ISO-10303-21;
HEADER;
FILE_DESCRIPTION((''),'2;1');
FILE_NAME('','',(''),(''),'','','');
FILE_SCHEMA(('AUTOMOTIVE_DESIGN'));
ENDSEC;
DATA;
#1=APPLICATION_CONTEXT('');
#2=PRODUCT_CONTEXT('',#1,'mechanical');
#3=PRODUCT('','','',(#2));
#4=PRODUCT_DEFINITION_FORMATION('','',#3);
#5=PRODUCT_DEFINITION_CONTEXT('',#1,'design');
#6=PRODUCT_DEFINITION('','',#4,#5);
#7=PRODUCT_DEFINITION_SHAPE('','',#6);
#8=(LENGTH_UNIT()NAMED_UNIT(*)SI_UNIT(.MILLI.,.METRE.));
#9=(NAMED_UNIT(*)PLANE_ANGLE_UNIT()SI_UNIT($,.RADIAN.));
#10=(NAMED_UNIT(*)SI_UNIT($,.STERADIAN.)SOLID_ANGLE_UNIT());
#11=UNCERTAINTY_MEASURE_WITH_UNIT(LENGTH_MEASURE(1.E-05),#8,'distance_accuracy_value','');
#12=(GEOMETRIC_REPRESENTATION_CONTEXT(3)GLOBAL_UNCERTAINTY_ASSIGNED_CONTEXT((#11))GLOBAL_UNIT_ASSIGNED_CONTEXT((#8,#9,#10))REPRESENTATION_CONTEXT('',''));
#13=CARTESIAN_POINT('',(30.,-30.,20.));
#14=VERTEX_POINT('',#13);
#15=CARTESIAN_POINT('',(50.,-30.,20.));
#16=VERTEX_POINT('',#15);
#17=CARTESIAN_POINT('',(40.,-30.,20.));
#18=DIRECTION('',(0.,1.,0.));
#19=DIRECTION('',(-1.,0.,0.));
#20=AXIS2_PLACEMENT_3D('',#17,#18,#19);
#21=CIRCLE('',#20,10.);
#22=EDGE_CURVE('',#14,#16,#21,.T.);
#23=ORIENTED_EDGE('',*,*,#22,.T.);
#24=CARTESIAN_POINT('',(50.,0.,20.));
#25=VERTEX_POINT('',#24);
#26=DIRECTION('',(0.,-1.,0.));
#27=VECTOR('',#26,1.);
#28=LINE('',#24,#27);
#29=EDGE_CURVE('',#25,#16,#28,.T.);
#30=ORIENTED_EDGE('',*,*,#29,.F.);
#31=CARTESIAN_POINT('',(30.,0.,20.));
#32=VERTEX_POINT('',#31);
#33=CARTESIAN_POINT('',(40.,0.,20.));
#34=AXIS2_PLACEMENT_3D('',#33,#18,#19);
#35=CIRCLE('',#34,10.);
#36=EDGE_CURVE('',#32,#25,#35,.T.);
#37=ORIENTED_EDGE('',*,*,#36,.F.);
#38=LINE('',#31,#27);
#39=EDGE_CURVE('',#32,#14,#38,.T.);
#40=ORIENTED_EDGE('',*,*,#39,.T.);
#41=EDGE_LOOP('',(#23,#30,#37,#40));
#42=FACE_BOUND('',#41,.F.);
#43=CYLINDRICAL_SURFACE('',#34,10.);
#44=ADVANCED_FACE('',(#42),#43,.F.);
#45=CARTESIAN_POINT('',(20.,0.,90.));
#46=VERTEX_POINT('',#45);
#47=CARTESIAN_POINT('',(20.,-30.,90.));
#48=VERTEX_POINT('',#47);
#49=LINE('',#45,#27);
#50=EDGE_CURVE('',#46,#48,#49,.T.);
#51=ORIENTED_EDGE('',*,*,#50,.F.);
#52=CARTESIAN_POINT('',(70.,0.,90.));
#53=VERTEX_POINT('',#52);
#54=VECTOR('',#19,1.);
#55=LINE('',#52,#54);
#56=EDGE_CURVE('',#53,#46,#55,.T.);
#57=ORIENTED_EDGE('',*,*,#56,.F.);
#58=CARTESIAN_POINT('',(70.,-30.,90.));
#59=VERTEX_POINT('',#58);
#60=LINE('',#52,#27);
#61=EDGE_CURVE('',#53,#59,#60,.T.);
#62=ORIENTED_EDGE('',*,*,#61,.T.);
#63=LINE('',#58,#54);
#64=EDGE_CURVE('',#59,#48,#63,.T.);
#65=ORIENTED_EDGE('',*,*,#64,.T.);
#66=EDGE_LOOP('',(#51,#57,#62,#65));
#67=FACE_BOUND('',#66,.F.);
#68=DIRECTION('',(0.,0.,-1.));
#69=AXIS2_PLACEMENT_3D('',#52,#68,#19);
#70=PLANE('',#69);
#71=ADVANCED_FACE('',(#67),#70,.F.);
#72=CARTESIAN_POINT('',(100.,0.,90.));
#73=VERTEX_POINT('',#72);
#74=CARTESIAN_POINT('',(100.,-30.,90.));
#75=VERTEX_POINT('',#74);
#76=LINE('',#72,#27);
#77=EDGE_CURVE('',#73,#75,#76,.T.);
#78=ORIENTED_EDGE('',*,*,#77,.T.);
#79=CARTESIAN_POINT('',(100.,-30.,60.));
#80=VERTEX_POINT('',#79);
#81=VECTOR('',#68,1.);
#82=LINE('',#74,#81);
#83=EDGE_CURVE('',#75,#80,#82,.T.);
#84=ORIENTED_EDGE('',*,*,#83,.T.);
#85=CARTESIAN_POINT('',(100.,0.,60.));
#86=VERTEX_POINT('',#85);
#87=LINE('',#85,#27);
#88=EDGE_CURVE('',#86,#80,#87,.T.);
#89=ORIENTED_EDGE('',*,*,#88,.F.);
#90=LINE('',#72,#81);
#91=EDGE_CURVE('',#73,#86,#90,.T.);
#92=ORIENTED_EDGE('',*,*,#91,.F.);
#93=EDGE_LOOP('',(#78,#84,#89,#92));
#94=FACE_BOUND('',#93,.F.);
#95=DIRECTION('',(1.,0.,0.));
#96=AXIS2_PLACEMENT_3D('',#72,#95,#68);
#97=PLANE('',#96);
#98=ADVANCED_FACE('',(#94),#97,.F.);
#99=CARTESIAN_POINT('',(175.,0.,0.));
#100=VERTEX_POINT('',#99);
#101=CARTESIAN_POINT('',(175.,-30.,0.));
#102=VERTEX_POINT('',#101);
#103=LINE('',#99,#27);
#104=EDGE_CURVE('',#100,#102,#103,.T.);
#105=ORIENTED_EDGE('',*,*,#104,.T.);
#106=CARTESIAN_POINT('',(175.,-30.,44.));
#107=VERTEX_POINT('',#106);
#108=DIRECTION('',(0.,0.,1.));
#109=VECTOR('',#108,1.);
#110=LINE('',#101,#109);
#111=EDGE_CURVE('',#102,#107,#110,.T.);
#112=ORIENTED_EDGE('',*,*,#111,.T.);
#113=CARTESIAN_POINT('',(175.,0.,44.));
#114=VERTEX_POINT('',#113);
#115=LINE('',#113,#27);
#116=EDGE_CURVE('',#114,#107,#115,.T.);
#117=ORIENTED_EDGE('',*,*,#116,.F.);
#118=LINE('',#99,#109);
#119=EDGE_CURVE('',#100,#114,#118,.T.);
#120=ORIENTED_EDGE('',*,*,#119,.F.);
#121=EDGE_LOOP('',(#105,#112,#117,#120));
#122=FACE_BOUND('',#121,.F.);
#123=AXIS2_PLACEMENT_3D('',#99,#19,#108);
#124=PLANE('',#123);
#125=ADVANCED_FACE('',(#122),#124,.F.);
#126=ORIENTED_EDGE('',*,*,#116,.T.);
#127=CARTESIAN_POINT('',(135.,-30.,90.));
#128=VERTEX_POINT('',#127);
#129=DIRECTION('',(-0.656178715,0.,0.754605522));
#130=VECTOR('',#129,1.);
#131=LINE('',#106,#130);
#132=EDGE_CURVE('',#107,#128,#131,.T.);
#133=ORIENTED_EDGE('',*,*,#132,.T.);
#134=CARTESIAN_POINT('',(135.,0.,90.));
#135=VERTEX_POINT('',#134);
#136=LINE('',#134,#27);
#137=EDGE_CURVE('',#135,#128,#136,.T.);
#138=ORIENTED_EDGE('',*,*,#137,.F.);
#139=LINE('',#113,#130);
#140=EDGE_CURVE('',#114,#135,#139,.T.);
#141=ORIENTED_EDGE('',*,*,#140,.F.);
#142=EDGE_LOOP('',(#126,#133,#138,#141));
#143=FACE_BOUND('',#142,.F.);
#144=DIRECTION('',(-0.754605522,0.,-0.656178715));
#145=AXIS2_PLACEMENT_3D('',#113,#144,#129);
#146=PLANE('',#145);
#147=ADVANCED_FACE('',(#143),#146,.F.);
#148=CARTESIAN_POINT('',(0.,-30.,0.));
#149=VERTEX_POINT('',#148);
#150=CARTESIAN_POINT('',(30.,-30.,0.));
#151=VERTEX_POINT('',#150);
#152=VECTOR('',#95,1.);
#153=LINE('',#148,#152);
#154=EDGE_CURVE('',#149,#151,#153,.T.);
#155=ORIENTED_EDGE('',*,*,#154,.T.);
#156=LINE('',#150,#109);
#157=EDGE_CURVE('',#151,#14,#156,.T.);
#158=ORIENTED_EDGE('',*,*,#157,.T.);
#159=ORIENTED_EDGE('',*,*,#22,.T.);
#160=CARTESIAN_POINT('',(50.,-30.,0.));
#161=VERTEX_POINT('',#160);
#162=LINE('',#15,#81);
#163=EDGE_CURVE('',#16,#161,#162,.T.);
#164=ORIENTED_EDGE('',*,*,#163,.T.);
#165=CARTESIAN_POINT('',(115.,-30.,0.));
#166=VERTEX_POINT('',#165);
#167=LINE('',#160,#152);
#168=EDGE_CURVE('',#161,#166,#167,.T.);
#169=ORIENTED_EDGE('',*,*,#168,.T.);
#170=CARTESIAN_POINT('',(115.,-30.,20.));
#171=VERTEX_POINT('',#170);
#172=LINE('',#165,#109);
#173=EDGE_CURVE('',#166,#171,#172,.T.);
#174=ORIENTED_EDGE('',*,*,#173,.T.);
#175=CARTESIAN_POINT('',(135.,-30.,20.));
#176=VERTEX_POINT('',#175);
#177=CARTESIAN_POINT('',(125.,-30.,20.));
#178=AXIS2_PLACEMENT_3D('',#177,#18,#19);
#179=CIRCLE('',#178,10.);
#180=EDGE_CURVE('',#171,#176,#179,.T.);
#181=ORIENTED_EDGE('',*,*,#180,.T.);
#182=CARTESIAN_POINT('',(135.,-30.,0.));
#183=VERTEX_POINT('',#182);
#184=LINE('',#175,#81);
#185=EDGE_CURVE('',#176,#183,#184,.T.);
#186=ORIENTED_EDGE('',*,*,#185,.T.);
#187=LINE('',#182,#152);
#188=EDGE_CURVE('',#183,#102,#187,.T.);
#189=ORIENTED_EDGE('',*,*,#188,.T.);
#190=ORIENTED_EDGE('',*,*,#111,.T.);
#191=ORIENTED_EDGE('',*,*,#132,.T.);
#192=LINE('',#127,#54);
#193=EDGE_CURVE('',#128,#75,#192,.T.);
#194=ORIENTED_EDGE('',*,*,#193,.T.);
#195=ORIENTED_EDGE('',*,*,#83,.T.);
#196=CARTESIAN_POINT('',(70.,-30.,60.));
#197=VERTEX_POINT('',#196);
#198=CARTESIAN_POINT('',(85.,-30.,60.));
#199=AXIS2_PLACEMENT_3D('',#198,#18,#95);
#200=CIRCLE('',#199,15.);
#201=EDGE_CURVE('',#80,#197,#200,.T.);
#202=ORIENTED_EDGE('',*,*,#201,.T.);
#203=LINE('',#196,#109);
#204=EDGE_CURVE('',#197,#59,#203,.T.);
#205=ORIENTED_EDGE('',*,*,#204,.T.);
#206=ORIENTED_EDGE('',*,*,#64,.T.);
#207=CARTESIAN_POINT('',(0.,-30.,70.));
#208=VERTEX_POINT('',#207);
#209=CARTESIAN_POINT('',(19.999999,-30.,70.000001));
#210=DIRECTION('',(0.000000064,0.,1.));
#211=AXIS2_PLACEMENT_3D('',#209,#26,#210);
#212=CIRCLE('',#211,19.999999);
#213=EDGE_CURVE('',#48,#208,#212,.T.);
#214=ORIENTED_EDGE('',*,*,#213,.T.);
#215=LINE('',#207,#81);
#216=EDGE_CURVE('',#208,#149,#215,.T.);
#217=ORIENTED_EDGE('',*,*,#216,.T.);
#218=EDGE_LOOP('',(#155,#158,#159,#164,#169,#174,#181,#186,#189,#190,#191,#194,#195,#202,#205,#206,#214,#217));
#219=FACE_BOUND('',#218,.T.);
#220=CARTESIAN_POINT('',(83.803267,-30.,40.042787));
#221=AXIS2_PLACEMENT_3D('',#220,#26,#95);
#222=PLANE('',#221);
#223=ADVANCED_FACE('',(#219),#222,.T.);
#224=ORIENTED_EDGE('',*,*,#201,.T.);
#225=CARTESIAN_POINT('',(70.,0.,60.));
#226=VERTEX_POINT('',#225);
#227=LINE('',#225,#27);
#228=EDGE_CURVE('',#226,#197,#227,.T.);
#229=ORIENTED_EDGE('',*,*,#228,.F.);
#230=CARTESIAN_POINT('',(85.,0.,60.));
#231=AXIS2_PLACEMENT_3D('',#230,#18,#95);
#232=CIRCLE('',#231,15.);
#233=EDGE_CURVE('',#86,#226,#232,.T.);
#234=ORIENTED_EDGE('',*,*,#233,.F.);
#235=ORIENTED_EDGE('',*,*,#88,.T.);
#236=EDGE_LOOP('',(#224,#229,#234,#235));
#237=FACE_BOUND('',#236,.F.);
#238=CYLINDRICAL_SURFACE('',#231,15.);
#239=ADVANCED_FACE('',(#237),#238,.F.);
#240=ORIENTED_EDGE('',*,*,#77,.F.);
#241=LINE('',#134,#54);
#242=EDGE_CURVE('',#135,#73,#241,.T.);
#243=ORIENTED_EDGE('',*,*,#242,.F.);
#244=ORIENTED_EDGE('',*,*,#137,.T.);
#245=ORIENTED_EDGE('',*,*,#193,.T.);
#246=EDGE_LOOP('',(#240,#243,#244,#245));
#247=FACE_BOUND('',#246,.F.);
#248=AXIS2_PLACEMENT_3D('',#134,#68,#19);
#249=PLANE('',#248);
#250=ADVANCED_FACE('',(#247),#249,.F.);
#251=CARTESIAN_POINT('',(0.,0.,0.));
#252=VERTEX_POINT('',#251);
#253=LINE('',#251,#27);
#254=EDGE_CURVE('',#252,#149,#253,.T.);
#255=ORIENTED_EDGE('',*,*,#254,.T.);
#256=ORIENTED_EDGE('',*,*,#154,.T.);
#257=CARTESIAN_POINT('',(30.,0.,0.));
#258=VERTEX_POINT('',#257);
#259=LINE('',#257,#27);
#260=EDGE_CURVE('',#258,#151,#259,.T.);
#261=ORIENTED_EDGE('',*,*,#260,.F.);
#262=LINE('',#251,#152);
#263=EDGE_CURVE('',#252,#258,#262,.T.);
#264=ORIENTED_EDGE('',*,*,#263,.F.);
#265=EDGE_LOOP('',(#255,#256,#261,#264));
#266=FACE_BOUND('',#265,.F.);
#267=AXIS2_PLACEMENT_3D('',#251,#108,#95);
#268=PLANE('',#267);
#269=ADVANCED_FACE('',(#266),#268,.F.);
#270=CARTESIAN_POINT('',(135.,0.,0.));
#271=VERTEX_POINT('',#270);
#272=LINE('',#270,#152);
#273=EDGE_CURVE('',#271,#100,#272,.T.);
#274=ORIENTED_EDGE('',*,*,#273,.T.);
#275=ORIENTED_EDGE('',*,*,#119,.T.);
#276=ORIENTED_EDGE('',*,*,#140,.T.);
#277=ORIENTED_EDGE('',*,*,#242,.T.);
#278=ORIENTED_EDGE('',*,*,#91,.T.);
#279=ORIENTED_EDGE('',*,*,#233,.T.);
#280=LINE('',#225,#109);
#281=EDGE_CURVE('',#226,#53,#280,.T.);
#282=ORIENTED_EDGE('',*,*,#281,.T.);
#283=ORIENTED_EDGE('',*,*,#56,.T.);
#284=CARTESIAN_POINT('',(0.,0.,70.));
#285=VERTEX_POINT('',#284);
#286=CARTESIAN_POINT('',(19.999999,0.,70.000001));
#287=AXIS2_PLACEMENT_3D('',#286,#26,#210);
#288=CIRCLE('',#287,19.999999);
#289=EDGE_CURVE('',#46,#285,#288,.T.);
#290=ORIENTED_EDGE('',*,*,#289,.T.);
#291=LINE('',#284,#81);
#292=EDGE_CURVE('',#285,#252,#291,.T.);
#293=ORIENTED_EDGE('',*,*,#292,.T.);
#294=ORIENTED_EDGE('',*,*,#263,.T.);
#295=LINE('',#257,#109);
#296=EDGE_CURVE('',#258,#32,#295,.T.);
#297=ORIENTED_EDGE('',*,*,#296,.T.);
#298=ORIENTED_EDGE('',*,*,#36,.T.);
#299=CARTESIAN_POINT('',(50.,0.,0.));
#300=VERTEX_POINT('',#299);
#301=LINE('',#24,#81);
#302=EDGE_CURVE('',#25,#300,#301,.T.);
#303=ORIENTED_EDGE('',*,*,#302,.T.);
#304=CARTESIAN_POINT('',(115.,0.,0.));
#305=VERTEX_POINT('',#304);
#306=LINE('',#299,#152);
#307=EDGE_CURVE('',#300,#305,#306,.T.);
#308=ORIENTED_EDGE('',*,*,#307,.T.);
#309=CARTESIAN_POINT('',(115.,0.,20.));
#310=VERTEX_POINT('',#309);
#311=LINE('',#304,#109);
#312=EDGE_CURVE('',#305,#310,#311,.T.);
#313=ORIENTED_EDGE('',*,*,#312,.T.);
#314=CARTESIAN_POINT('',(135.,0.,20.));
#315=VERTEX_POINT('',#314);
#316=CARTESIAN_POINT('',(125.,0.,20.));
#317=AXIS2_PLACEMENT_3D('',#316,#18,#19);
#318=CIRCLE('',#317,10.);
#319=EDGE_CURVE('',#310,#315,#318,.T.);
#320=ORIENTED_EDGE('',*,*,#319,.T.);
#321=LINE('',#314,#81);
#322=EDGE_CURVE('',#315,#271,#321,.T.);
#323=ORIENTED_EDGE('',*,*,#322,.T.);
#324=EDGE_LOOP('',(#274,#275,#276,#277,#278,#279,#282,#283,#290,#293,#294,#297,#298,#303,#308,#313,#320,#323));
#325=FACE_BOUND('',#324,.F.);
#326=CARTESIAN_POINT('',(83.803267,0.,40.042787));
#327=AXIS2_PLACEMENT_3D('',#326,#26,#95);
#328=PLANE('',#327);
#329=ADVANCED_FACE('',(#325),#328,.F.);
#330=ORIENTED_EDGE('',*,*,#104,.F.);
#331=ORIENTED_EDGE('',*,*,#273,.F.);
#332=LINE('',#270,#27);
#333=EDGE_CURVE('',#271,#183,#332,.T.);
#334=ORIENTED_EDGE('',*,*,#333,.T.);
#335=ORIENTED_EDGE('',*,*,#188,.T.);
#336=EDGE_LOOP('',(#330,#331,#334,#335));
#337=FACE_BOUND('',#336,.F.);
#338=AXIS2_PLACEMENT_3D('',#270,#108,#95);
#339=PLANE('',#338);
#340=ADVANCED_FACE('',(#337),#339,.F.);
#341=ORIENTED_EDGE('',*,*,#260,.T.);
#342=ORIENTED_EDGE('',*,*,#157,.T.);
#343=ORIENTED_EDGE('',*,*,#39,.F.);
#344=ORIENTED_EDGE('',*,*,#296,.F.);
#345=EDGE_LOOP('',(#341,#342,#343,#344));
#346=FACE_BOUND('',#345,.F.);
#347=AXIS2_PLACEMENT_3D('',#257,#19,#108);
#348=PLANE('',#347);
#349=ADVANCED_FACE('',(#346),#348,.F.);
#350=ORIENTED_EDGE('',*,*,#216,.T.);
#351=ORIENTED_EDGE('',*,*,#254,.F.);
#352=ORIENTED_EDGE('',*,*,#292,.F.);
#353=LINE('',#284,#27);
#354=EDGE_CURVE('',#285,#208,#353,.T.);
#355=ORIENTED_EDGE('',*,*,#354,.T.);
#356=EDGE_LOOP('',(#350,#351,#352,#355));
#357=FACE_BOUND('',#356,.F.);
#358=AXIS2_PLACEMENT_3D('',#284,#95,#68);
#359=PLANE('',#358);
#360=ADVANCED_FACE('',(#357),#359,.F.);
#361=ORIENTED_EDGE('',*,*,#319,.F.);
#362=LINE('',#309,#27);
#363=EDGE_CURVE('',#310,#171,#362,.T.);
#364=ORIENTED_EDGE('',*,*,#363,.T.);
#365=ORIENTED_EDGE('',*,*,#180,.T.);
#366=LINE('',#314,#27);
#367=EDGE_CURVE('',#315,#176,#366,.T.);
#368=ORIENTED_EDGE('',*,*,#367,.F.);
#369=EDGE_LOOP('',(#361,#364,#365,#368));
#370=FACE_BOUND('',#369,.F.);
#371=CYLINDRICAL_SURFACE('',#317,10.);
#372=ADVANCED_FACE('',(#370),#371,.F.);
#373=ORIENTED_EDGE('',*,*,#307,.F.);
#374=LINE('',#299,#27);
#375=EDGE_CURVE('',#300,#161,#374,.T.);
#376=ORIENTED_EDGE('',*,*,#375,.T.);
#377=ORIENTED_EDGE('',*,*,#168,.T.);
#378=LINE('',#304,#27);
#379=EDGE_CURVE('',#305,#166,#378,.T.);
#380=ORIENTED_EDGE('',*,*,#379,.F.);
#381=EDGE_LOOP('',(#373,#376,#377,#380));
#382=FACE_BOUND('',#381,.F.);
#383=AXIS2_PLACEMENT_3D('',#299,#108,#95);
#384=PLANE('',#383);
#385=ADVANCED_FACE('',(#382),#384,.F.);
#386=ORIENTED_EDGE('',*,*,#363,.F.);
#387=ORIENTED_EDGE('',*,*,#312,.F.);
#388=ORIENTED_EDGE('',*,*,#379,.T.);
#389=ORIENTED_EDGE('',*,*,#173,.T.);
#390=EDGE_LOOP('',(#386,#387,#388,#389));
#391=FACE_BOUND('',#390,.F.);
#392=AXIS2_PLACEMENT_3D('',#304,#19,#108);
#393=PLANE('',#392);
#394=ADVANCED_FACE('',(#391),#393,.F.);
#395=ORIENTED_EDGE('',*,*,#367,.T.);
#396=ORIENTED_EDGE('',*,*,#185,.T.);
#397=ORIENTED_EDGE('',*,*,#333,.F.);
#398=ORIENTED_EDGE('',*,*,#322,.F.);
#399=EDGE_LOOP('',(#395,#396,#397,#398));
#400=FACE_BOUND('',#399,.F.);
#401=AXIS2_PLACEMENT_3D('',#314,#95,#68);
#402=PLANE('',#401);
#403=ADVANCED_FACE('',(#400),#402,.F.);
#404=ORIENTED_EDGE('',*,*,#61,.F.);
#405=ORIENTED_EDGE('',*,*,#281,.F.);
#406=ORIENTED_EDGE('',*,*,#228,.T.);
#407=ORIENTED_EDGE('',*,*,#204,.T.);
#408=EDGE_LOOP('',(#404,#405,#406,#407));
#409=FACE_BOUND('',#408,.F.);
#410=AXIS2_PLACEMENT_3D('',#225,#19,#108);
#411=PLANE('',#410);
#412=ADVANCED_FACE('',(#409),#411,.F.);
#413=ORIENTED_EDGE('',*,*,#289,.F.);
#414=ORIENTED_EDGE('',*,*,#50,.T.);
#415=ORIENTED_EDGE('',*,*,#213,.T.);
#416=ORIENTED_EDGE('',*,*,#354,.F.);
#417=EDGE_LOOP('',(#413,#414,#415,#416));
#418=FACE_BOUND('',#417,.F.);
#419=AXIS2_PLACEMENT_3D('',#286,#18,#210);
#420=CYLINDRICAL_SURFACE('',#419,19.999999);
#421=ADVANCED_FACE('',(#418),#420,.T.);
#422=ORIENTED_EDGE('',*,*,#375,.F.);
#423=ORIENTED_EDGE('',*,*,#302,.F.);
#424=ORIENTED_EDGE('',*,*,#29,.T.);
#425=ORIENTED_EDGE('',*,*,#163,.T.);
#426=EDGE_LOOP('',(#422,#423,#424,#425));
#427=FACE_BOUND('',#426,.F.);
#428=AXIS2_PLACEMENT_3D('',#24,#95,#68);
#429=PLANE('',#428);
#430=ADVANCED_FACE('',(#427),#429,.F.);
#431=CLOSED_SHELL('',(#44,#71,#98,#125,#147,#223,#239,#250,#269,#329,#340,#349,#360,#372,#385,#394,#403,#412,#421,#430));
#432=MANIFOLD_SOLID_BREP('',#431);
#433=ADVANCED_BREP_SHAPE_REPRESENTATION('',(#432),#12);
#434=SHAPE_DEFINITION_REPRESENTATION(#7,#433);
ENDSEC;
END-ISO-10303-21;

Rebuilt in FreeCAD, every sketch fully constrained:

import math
import FreeCAD as App
import Part
import Sketcher
from FreeCAD import Vector
Q = App.Units.Quantity

doc = App.newDocument("Part")
body = doc.addObject("PartDesign::Body", "Body")

# Sketch on XZ plane
sketch1 = body.newObject("Sketcher::SketchObject", "Sketch")
sketch1.AttachmentSupport = (doc.getObject("XZ_Plane"), [""])
sketch1.MapMode = "FlatFace"
sketch1.addGeometry([
    Part.LineSegment(Vector(0, 70, 0), Vector(0, 0, 0)),  # 0
    Part.LineSegment(Vector(0, 0, 0), Vector(30, 0, 0)),  # 1
    Part.LineSegment(Vector(30, 0, 0), Vector(30, 20, 0)),  # 2
    Part.ArcOfCircle(Part.Circle(Vector(40, 20, 0), Vector(0, 0, 1), 10), math.radians(0), math.radians(180)),  # 3
    Part.LineSegment(Vector(50, 20, 0), Vector(50, 0, 0)),  # 4
    Part.LineSegment(Vector(50, 0, 0), Vector(115, 0, 0)),  # 5
    Part.LineSegment(Vector(115, 0, 0), Vector(115, 20, 0)),  # 6
    Part.ArcOfCircle(Part.Circle(Vector(125, 20, 0), Vector(0, 0, 1), 10), math.radians(0), math.radians(180)),  # 7
    Part.LineSegment(Vector(135, 20, 0), Vector(135, 0, 0)),  # 8
    Part.LineSegment(Vector(135, 0, 0), Vector(175, 0, 0)),  # 9
    Part.LineSegment(Vector(175, 0, 0), Vector(175, 44, 0)),  # 10
    Part.LineSegment(Vector(175, 44, 0), Vector(135, 90, 0)),  # 11
    Part.LineSegment(Vector(135, 90, 0), Vector(100, 90, 0)),  # 12
    Part.LineSegment(Vector(100, 90, 0), Vector(100, 60, 0)),  # 13
    Part.ArcOfCircle(Part.Circle(Vector(85, 60, 0), Vector(0, 0, 1), 15), math.radians(180), math.radians(360)),  # 14
    Part.LineSegment(Vector(70, 60, 0), Vector(70, 90, 0)),  # 15
    Part.LineSegment(Vector(70, 90, 0), Vector(20, 90, 0)),  # 16
    Part.ArcOfCircle(Part.Circle(Vector(20, 70, 0), Vector(0, 0, 1), 20), math.radians(90), math.radians(180)),  # 17
], False)
sketch1.addConstraint([
    Sketcher.Constraint("Coincident", 0, 2, 1, 1),
    Sketcher.Constraint("Coincident", 1, 2, 2, 1),
    Sketcher.Constraint("Tangent", 2, 2, 3, 2),
    Sketcher.Constraint("Tangent", 3, 1, 4, 1),
    Sketcher.Constraint("Coincident", 4, 2, 5, 1),
    Sketcher.Constraint("Coincident", 5, 2, 6, 1),
    Sketcher.Constraint("Tangent", 6, 2, 7, 2),
    Sketcher.Constraint("Tangent", 7, 1, 8, 1),
    Sketcher.Constraint("Coincident", 8, 2, 9, 1),
    Sketcher.Constraint("Coincident", 9, 2, 10, 1),
    Sketcher.Constraint("Coincident", 10, 2, 11, 1),
    Sketcher.Constraint("Coincident", 11, 2, 12, 1),
    Sketcher.Constraint("Coincident", 12, 2, 13, 1),
    Sketcher.Constraint("Tangent", 13, 2, 14, 2),
    Sketcher.Constraint("Tangent", 14, 1, 15, 1),
    Sketcher.Constraint("Coincident", 15, 2, 16, 1),
    Sketcher.Constraint("Tangent", 16, 2, 17, 1),
    Sketcher.Constraint("Tangent", 17, 2, 0, 1),
    Sketcher.Constraint("Vertical", 0),
    Sketcher.Constraint("Horizontal", 1),
    Sketcher.Constraint("Vertical", 2),
    Sketcher.Constraint("Vertical", 4),
    Sketcher.Constraint("Horizontal", 5),
    Sketcher.Constraint("Vertical", 6),
    Sketcher.Constraint("Vertical", 8),
    Sketcher.Constraint("Horizontal", 9),
    Sketcher.Constraint("Vertical", 10),
    Sketcher.Constraint("Horizontal", 12),
    Sketcher.Constraint("Vertical", 13),
    Sketcher.Constraint("Vertical", 15),
    Sketcher.Constraint("Horizontal", 16),
    Sketcher.Constraint("Coincident", 0, 2, -1, 1),
    Sketcher.Constraint("Equal", 3, 7),
    Sketcher.Constraint("PointOnObject", 4, 2, -1),
    Sketcher.Constraint("PointOnObject", 8, 2, -1),
    Sketcher.Constraint("Horizontal", 3, 3, 7, 3),
    Sketcher.Constraint("Horizontal", 12, 2, 15, 2),
    Sketcher.Constraint("Vertical", 8, 2, 11, 2),
    Sketcher.Constraint("Equal", 1, 13),
    Sketcher.Constraint("Radius", 3, Q("10 mm")),
    Sketcher.Constraint("Radius", 14, Q("15 mm")),
    Sketcher.Constraint("Radius", 17, Q("19.999999 mm")),
    Sketcher.Constraint("DistanceX", 1, 1, 1, 2, Q("30 mm")),
    Sketcher.Constraint("DistanceX", 5, 1, 5, 2, Q("65 mm")),
    Sketcher.Constraint("DistanceX", 9, 1, 9, 2, Q("40 mm")),
    Sketcher.Constraint("DistanceX", 12, 2, 12, 1, Q("35 mm")),
    Sketcher.Constraint("DistanceY", 0, 2, 0, 1, Q("70 mm")),
    Sketcher.Constraint("DistanceY", 2, 1, 2, 2, Q("20 mm")),
    Sketcher.Constraint("DistanceY", 10, 1, 10, 2, Q("44 mm")),
])
pad1 = body.newObject("PartDesign::Pad", "Pad")
pad1.Profile = sketch1
pad1.Length = 30

doc.recompute()
